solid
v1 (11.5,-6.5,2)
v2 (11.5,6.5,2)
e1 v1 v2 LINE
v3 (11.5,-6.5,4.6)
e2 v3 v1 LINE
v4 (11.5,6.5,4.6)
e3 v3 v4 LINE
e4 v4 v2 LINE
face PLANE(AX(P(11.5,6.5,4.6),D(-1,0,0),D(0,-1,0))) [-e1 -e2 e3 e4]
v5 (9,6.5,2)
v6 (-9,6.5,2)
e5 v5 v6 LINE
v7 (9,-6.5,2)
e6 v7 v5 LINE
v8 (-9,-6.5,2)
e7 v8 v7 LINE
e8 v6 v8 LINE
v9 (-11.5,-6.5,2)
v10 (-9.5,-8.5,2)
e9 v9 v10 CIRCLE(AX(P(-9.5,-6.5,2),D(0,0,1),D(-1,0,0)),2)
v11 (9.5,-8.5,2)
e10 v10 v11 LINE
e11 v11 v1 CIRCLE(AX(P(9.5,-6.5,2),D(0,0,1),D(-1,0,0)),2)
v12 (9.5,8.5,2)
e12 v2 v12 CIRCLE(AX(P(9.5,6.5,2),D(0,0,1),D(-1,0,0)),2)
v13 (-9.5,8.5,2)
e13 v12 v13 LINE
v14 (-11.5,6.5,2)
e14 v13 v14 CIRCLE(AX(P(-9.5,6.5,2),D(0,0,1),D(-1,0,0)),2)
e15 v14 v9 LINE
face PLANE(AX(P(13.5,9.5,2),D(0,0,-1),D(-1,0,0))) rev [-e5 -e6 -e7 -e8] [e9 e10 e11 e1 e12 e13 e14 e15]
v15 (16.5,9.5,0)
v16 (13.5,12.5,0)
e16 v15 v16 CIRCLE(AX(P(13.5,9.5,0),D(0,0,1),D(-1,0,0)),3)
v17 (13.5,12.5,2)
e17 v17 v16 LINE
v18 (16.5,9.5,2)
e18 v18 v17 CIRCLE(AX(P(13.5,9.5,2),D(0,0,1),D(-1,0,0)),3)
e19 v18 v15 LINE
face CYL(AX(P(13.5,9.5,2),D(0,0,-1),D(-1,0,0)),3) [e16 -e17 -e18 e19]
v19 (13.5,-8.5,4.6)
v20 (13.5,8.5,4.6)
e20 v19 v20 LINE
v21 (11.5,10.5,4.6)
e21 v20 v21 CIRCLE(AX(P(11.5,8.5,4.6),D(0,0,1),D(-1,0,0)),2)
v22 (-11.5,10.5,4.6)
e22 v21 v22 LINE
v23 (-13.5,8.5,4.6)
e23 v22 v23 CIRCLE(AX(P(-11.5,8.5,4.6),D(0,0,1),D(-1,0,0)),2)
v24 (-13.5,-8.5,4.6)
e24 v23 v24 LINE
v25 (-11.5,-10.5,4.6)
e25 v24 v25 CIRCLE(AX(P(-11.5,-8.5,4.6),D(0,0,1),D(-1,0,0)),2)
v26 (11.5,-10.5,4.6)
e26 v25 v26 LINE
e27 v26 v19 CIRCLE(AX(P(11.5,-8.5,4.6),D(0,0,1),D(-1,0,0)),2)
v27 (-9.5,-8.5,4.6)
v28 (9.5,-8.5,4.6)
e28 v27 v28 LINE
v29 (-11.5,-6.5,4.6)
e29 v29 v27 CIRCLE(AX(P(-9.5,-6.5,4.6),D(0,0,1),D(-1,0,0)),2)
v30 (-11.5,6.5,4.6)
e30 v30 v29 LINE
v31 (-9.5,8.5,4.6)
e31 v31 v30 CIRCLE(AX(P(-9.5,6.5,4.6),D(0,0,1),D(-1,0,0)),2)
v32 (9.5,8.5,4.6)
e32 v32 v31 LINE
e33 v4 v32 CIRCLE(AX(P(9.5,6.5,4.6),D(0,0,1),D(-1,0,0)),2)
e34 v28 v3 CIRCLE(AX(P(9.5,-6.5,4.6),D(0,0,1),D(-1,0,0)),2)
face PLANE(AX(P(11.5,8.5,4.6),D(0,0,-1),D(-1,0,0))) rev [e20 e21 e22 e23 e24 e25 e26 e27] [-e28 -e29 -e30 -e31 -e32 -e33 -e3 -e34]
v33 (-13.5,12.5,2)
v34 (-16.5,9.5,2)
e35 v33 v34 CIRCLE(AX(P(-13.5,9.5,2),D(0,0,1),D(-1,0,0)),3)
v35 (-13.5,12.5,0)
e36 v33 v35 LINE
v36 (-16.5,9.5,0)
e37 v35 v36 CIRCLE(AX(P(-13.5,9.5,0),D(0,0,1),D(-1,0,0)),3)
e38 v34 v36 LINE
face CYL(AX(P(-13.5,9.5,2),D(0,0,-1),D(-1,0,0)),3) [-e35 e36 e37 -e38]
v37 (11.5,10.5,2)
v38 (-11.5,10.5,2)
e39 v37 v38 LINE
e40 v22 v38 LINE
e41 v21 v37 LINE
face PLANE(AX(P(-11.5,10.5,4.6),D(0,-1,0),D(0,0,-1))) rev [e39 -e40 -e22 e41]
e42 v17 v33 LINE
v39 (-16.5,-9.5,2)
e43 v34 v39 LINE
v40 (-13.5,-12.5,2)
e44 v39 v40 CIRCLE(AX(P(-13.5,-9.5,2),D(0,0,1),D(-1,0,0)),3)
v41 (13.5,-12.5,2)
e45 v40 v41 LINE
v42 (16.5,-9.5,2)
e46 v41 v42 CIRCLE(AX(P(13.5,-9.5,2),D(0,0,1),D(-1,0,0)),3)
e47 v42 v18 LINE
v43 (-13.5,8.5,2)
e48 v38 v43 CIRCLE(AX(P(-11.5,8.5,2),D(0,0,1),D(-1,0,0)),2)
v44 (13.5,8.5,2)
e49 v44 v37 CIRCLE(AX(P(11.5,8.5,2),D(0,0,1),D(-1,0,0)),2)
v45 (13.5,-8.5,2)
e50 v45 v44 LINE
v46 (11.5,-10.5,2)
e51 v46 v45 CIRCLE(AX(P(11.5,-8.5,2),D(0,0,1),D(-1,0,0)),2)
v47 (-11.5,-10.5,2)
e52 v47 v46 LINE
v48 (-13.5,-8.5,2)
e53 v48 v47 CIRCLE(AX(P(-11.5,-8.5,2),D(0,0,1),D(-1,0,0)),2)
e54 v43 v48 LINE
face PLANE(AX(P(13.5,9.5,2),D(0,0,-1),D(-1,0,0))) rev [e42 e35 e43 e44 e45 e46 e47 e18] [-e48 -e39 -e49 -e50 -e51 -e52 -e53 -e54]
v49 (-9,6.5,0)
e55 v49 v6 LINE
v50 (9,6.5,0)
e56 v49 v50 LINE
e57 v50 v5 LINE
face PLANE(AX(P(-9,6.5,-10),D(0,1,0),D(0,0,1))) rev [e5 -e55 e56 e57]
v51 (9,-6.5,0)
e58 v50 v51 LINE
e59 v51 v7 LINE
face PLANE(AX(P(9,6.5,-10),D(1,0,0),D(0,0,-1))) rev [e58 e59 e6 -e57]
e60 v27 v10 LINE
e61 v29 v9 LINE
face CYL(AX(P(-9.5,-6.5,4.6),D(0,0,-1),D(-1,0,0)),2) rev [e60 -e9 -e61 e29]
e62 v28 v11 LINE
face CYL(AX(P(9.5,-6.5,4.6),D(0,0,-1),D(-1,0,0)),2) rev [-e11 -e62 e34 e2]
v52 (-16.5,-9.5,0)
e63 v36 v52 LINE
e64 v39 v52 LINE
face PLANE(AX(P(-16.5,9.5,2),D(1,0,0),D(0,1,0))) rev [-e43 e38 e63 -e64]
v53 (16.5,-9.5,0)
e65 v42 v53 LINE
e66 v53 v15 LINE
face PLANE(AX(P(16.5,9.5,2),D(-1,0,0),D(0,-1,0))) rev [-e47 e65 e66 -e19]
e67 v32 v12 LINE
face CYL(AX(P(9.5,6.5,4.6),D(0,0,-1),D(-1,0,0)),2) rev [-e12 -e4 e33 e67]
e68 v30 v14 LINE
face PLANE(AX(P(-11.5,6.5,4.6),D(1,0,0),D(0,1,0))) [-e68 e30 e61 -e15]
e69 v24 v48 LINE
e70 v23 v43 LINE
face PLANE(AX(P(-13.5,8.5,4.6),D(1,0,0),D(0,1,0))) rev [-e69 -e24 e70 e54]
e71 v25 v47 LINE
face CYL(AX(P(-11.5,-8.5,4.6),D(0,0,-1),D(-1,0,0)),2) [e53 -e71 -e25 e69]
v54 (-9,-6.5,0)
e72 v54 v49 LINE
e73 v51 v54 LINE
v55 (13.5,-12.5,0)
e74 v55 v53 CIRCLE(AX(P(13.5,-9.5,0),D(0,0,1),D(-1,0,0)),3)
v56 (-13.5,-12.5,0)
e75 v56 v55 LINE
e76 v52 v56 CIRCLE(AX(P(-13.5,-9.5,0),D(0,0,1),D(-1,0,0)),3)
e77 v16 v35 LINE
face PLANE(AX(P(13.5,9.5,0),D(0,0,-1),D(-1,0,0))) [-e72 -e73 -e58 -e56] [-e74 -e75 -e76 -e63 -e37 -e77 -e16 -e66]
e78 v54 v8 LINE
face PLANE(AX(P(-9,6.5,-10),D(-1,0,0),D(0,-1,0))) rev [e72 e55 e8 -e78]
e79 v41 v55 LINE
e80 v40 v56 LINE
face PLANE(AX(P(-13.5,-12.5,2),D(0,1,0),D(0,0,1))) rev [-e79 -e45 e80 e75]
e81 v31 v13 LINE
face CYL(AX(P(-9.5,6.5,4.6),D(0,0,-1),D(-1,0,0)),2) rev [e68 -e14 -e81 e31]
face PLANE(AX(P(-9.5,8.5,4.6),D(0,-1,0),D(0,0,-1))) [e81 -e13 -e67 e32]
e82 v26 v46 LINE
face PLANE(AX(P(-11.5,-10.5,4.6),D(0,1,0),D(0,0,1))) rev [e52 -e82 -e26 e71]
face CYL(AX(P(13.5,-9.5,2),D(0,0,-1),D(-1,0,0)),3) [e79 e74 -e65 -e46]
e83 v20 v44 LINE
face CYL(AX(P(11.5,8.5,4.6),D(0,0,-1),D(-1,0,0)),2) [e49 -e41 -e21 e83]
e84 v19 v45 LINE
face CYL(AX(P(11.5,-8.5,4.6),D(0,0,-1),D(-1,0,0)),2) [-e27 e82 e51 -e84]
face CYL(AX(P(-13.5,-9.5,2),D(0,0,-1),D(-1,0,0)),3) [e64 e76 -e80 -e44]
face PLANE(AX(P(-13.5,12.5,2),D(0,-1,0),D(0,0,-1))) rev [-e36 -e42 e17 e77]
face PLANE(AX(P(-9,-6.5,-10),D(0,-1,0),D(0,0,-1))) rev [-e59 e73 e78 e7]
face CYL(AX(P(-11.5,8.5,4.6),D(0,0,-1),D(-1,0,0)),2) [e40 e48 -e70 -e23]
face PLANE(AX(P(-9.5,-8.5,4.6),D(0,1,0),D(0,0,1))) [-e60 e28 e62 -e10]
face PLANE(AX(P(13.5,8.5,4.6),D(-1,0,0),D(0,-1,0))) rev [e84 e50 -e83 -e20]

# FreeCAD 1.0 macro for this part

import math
import FreeCAD as App
import Part
import Sketcher

V = App.Vector

doc = App.newDocument("Part")
body = doc.addObject("PartDesign::Body", "Body")

sketch1 = doc.addObject("Sketcher::SketchObject", "Sketch")
body.addObject(sketch1)
sketch1.AttachmentSupport = (doc.XY_Plane, [""])
sketch1.MapMode = "FlatFace"
sketch1.addGeometry([
    Part.LineSegment(V(13.5, 12.5, 0), V(-13.5, 12.5, 0)),
    Part.ArcOfCircle(Part.Circle(V(-13.5, 9.5, 0), V(0, 0, 1), 3), math.radians(90), math.radians(180)),
    Part.LineSegment(V(-16.5, 9.5, 0), V(-16.5, -9.5, 0)),
    Part.ArcOfCircle(Part.Circle(V(-13.5, -9.5, 0), V(0, 0, 1), 3), math.radians(180), math.radians(270)),
    Part.LineSegment(V(-13.5, -12.5, 0), V(13.5, -12.5, 0)),
    Part.ArcOfCircle(Part.Circle(V(13.5, -9.5, 0), V(0, 0, 1), 3), math.radians(-90), math.radians(0)),
    Part.LineSegment(V(16.5, -9.5, 0), V(16.5, 9.5, 0)),
    Part.ArcOfCircle(Part.Circle(V(13.5, 9.5, 0), V(0, 0, 1), 3), math.radians(0), math.radians(90)),
], False)
sketch1.addConstraint([
    Sketcher.Constraint("Tangent", 0, 2, 1, 1),
    Sketcher.Constraint("Tangent", 1, 2, 2, 1),
    Sketcher.Constraint("Tangent", 2, 2, 3, 1),
    Sketcher.Constraint("Tangent", 3, 2, 4, 1),
    Sketcher.Constraint("Tangent", 4, 2, 5, 1),
    Sketcher.Constraint("Tangent", 5, 2, 6, 1),
    Sketcher.Constraint("Tangent", 6, 2, 7, 1),
    Sketcher.Constraint("Tangent", 7, 2, 0, 1),
    Sketcher.Constraint("Horizontal", 0),
    Sketcher.Constraint("Vertical", 2),
    Sketcher.Constraint("Horizontal", 4),
    Sketcher.Constraint("Vertical", 6),
    Sketcher.Constraint("Equal", 1, 3),
    Sketcher.Constraint("Equal", 3, 5),
    Sketcher.Constraint("Equal", 5, 7),
    Sketcher.Constraint("Symmetric", 1, 3, 5, 3, -1, 1),
    Sketcher.Constraint("Radius", 1, 3.0),
    Sketcher.Constraint("DistanceX", 0, 2, 0, 1, 27.0),
    Sketcher.Constraint("DistanceY", 2, 2, 2, 1, 19.0),
])
pad1 = doc.addObject("PartDesign::Pad", "Pad")
body.addObject(pad1)
pad1.Profile = sketch1
pad1.Length = 2

sketch2 = doc.addObject("Sketcher::SketchObject", "Sketch001")
body.addObject(sketch2)
sketch2.AttachmentSupport = (doc.XY_Plane, [""])
sketch2.MapMode = "FlatFace"
sketch2.AttachmentOffset = App.Placement(V(0, 0, 2), App.Rotation())
sketch2.addGeometry([
    Part.LineSegment(V(11.5, 10.5, 0), V(-11.5, 10.5, 0)),
    Part.ArcOfCircle(Part.Circle(V(-11.5, 8.5, 0), V(0, 0, 1), 2), math.radians(90), math.radians(180)),
    Part.LineSegment(V(-13.5, 8.5, 0), V(-13.5, -8.5, 0)),
    Part.ArcOfCircle(Part.Circle(V(-11.5, -8.5, 0), V(0, 0, 1), 2), math.radians(-180), math.radians(-90)),
    Part.LineSegment(V(-11.5, -10.5, 0), V(11.5, -10.5, 0)),
    Part.ArcOfCircle(Part.Circle(V(11.5, -8.5, 0), V(0, 0, 1), 2), math.radians(-90), math.radians(0)),
    Part.LineSegment(V(13.5, -8.5, 0), V(13.5, 8.5, 0)),
    Part.ArcOfCircle(Part.Circle(V(11.5, 8.5, 0), V(0, 0, 1), 2), math.radians(0), math.radians(90)),
    Part.LineSegment(V(-9.5, 8.5, 0), V(9.5, 8.5, 0)),
    Part.ArcOfCircle(Part.Circle(V(9.5, 6.5, 0), V(0, 0, 1), 2), math.radians(0), math.radians(90)),
    Part.LineSegment(V(11.5, 6.5, 0), V(11.5, -6.5, 0)),
    Part.ArcOfCircle(Part.Circle(V(9.5, -6.5, 0), V(0, 0, 1), 2), math.radians(-90), math.radians(0)),
    Part.LineSegment(V(9.5, -8.5, 0), V(-9.5, -8.5, 0)),
    Part.ArcOfCircle(Part.Circle(V(-9.5, -6.5, 0), V(0, 0, 1), 2), math.radians(-180), math.radians(-90)),
    Part.LineSegment(V(-11.5, -6.5, 0), V(-11.5, 6.5, 0)),
    Part.ArcOfCircle(Part.Circle(V(-9.5, 6.5, 0), V(0, 0, 1), 2), math.radians(90), math.radians(180)),
], False)
sketch2.addConstraint([
    Sketcher.Constraint("Tangent", 0, 2, 1, 1),
    Sketcher.Constraint("Tangent", 1, 2, 2, 1),
    Sketcher.Constraint("Tangent", 2, 2, 3, 1),
    Sketcher.Constraint("Tangent", 3, 2, 4, 1),
    Sketcher.Constraint("Tangent", 4, 2, 5, 1),
    Sketcher.Constraint("Tangent", 5, 2, 6, 1),
    Sketcher.Constraint("Tangent", 6, 2, 7, 1),
    Sketcher.Constraint("Tangent", 7, 2, 0, 1),
    Sketcher.Constraint("Tangent", 8, 2, 9, 2),
    Sketcher.Constraint("Tangent", 9, 1, 10, 1),
    Sketcher.Constraint("Tangent", 10, 2, 11, 2),
    Sketcher.Constraint("Tangent", 11, 1, 12, 1),
    Sketcher.Constraint("Tangent", 12, 2, 13, 2),
    Sketcher.Constraint("Tangent", 13, 1, 14, 1),
    Sketcher.Constraint("Tangent", 14, 2, 15, 2),
    Sketcher.Constraint("Tangent", 15, 1, 8, 1),
    Sketcher.Constraint("Horizontal", 0),
    Sketcher.Constraint("Vertical", 2),
    Sketcher.Constraint("Horizontal", 4),
    Sketcher.Constraint("Vertical", 6),
    Sketcher.Constraint("Horizontal", 8),
    Sketcher.Constraint("Vertical", 10),
    Sketcher.Constraint("Horizontal", 12),
    Sketcher.Constraint("Vertical", 14),
    Sketcher.Constraint("Equal", 1, 3),
    Sketcher.Constraint("Equal", 3, 5),
    Sketcher.Constraint("Equal", 5, 7),
    Sketcher.Constraint("Equal", 7, 9),
    Sketcher.Constraint("Equal", 9, 11),
    Sketcher.Constraint("Equal", 11, 13),
    Sketcher.Constraint("Equal", 13, 15),
    Sketcher.Constraint("Symmetric", 1, 3, 5, 3, -1, 1),
    Sketcher.Constraint("Symmetric", 9, 3, 13, 3, -1, 1),
    Sketcher.Constraint("Horizontal", 6, 2, 8, 2),
    Sketcher.Constraint("Vertical", 7, 2, 9, 1),
    Sketcher.Constraint("Radius", 1, 2.0),
    Sketcher.Constraint("DistanceX", 0, 2, 0, 1, 23.0),
    Sketcher.Constraint("DistanceY", 2, 2, 2, 1, 17.0),
])
pad2 = doc.addObject("PartDesign::Pad", "Pad001")
body.addObject(pad2)
pad2.Profile = sketch2
pad2.Length = 2.6

sketch3 = doc.addObject("Sketcher::SketchObject", "Sketch002")
body.addObject(sketch3)
sketch3.AttachmentSupport = (doc.XY_Plane, [""])
sketch3.MapMode = "FlatFace"
sketch3.AttachmentOffset = App.Placement(V(0, 0, 2), App.Rotation())
sketch3.addGeometry([
    Part.LineSegment(V(-9, 6.5, 0), V(-9, -6.5, 0)),
    Part.LineSegment(V(-9, -6.5, 0), V(9, -6.5, 0)),
    Part.LineSegment(V(9, -6.5, 0), V(9, 6.5, 0)),
    Part.LineSegment(V(9, 6.5, 0), V(-9, 6.5, 0)),
], False)
sketch3.addConstraint([
    Sketcher.Constraint("Coincident", 0, 2, 1, 1),
    Sketcher.Constraint("Coincident", 1, 2, 2, 1),
    Sketcher.Constraint("Coincident", 2, 2, 3, 1),
    Sketcher.Constraint("Coincident", 3, 2, 0, 1),
    Sketcher.Constraint("Vertical", 0),
    Sketcher.Constraint("Horizontal", 1),
    Sketcher.Constraint("Vertical", 2),
    Sketcher.Constraint("Horizontal", 3),
    Sketcher.Constraint("Symmetric", 0, 2, 2, 2, -1, 1),
    Sketcher.Constraint("DistanceX", 1, 1, 1, 2, 18.0),
    Sketcher.Constraint("DistanceY", 0, 2, 0, 1, 13.0),
])
pocket1 = doc.addObject("PartDesign::Pocket", "Pocket")
body.addObject(pocket1)
pocket1.Profile = sketch3
pocket1.Length = 12

doc.recompute()
